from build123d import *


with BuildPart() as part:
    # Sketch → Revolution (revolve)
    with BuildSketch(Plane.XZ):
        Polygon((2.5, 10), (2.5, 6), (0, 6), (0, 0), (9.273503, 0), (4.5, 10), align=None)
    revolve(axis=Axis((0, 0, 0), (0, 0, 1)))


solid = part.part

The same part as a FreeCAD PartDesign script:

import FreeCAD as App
import Part
import Sketcher
Q = App.Units.Quantity


def add_polygon(sketch, points):
    """Adds a closed chain of lines whose ends are joined by coincident constraints."""
    first, n = sketch.GeometryCount, len(points)
    for a, b in zip(points, points[1:] + points[:1]):
        sketch.addGeometry(Part.LineSegment(App.Vector(*a, 0), App.Vector(*b, 0)), False)
    for i in range(n):
        sketch.addConstraint(Sketcher.Constraint("Coincident", first + i, 2, first + (i + 1) % n, 1))

doc = App.newDocument("Part")
params = doc.addObject("Spreadsheet::Sheet", "Params")
for row, (alias, value) in enumerate([
    ("sketch1_width", "2 mm"),
    ("sketch1_height", "4 mm"),
    ("sketch1_height2", "6 mm"),
    ("sketch1_width2", "2.5 mm"),
    ("revolution_angle", "360 deg"),
], start=1):
    params.set(f"A{row}", alias)
    params.set(f"B{row}", "=" + value)
    params.setAlias(f"B{row}", alias)

body = doc.addObject("PartDesign::Body", "Body")

# Sketch on XZ plane
sketch1 = doc.addObject("Sketcher::SketchObject", "Sketch")
body.addObject(sketch1)
sketch1.AttachmentSupport = (doc.XZ_Plane, [""])
sketch1.MapMode = "FlatFace"
add_polygon(sketch1, [(2.5, 10), (2.5, 6), (0, 6), (0, 0), (9.3, 0), (4.5, 10)])  # lines 0-5
sketch1.addConstraint(Sketcher.Constraint("Vertical", 0))
sketch1.addConstraint(Sketcher.Constraint("Horizontal", 1))
sketch1.addConstraint(Sketcher.Constraint("Vertical", 2))
sketch1.addConstraint(Sketcher.Constraint("Horizontal", 3))
sketch1.addConstraint(Sketcher.Constraint("Horizontal", 5))
sketch1.addConstraint(Sketcher.Constraint("Coincident", 2, 2, -1, 1))
sketch1.addConstraint(Sketcher.Constraint("DistanceX", 5, 2, 5, 1, Q("2 mm")))
sketch1.addConstraint(Sketcher.Constraint("DistanceY", 0, 2, 0, 1, Q("4 mm")))
sketch1.addConstraint(Sketcher.Constraint("DistanceY", 2, 2, 2, 1, Q("6 mm")))
sketch1.addConstraint(Sketcher.Constraint("DistanceX", 1, 2, 1, 1, Q("2.5 mm")))
sketch1.addConstraint(Sketcher.Constraint("Distance", 4, Q("11.080899 mm")))
sketch1.setExpression("Constraints[12]", "Params.sketch1_width")
sketch1.setExpression("Constraints[13]", "Params.sketch1_height")
sketch1.setExpression("Constraints[14]", "Params.sketch1_height2")
sketch1.setExpression("Constraints[15]", "Params.sketch1_width2")
revolution = doc.addObject("PartDesign::Revolution", "Revolution")
body.addObject(revolution)
revolution.Profile = sketch1
revolution.ReferenceAxis = (sketch1, ["V_Axis"])
revolution.setExpression("Angle", "Params.revolution_angle")

doc.recompute()
